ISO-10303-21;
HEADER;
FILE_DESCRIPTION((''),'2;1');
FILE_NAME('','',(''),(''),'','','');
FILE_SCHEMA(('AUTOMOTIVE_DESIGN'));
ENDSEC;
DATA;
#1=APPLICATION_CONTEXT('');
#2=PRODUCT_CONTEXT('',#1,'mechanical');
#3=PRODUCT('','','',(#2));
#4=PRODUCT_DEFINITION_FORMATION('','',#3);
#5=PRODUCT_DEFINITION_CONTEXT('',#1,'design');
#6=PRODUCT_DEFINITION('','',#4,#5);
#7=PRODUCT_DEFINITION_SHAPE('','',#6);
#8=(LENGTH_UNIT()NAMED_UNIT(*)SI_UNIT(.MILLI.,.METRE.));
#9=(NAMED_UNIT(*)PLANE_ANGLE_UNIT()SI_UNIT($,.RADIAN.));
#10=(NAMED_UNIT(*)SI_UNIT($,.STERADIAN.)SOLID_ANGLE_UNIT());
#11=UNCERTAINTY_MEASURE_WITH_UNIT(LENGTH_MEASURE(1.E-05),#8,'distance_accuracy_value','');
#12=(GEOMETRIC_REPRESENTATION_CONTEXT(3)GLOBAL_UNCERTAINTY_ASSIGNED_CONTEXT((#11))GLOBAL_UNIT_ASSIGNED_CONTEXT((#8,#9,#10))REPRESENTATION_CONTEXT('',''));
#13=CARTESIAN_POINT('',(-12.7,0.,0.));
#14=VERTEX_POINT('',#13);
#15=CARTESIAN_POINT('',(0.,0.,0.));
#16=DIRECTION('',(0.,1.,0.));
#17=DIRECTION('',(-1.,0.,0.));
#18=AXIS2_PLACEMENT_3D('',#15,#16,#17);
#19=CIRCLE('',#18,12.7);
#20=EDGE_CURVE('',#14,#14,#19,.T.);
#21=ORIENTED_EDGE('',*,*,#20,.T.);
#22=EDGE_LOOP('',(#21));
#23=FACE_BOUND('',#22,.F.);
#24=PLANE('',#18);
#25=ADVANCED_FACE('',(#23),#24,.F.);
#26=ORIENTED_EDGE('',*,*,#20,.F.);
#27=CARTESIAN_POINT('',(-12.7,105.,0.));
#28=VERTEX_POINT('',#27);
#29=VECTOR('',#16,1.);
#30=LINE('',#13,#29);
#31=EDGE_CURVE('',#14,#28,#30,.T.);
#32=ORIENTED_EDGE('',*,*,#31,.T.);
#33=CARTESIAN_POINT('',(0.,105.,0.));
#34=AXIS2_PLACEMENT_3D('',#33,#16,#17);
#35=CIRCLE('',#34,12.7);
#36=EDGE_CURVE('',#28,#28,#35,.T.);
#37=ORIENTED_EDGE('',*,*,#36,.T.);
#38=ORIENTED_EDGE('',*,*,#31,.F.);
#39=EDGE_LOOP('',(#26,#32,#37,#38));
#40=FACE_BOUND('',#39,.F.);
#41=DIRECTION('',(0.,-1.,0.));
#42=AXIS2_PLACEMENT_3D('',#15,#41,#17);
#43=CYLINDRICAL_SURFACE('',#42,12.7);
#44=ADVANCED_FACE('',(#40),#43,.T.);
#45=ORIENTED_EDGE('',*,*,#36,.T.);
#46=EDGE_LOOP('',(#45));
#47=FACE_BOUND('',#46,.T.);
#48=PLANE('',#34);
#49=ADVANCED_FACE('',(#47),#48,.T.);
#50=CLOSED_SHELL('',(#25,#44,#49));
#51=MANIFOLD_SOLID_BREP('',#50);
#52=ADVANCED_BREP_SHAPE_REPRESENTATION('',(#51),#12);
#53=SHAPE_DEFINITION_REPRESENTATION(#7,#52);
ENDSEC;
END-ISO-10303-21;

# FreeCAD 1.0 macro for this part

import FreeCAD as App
import Part
import Sketcher

V = App.Vector

doc = App.newDocument("Part")
body = doc.addObject("PartDesign::Body", "Body")

# Sketch on XZ plane
sketch1 = body.newObject("Sketcher::SketchObject", "Sketch")
sketch1.AttachmentSupport = (doc.getObject("XZ_Plane"), [""])
sketch1.MapMode = "FlatFace"
sketch1.addGeometry(Part.Circle(V(0, 0, 0), V(0, 0, 1), 13), False)
sketch1.addConstraint([
    Sketcher.Constraint("Coincident", 0, 3, -1, 1),
    Sketcher.Constraint("Diameter", 0, 25.4),
])
pad1 = body.newObject("PartDesign::Pad", "Pad")
pad1.Profile = sketch1
pad1.Length = 105
pad1.Reversed = True

doc.recompute()
